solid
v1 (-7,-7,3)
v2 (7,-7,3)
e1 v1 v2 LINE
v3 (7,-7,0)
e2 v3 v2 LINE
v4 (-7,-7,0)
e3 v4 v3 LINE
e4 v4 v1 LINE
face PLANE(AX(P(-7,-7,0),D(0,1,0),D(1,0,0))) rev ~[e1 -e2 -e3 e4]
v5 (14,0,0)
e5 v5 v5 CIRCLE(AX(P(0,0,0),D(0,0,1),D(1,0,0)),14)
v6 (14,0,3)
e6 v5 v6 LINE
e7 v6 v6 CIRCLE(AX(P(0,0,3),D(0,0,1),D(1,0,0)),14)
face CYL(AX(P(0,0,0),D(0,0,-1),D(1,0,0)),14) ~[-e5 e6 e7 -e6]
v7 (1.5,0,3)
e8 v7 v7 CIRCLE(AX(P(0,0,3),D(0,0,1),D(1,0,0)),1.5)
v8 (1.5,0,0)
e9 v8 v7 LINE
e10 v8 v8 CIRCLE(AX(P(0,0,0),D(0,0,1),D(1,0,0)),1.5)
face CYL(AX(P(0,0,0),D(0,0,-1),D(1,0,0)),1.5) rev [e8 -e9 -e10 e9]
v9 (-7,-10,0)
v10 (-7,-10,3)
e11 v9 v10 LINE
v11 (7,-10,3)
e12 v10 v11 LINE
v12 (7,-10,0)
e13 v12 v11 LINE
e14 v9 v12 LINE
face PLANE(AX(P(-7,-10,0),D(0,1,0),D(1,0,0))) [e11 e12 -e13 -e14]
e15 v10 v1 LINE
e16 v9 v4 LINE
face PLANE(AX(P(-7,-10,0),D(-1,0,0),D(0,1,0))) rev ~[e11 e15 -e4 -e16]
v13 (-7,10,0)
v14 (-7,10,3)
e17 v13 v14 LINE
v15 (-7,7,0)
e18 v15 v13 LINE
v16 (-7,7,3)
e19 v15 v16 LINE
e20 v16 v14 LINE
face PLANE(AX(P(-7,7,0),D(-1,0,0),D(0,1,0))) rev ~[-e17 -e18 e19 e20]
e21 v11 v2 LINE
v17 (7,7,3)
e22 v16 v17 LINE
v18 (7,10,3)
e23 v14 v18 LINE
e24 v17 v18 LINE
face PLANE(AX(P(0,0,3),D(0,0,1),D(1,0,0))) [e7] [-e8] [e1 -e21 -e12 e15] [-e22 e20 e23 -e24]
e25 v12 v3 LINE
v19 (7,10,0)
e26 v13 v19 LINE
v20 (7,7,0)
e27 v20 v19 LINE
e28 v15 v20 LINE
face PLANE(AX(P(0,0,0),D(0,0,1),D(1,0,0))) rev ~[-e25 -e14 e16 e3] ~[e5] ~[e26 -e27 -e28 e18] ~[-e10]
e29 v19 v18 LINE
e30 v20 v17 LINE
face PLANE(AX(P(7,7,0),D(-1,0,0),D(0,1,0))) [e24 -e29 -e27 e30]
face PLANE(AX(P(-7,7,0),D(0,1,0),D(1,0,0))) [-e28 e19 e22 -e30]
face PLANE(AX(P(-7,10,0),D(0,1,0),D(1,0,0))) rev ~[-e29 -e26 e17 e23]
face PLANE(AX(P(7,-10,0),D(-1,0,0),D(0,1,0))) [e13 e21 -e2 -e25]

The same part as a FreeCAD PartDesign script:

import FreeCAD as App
import Part
import Sketcher

V = App.Vector
Q = App.Units.Quantity


def add_polygon(sketch, points):
    """Adds a closed chain of lines whose ends are joined by coincident constraints."""
    first, n = sketch.GeometryCount, len(points)
    for a, b in zip(points, points[1:] + points[:1]):
        sketch.addGeometry(Part.LineSegment(App.Vector(*a, 0), App.Vector(*b, 0)), False)
    for i in range(n):
        sketch.addConstraint(Sketcher.Constraint("Coincident", first + i, 2, first + (i + 1) % n, 1))

doc = App.newDocument("Part")
params = doc.addObject("Spreadsheet::Sheet", "Params")
for row, (alias, value) in enumerate([
    ("sketch1_diameter", "28 mm"),
    ("sketch1_diameter2", "3 mm"),
    ("sketch1_width", "14 mm"),
    ("sketch1_height", "3 mm"),
    ("pad1_length", "3 mm"),
], start=1):
    params.set(f"A{row}", alias)
    params.set(f"B{row}", "=" + value)
    params.setAlias(f"B{row}", alias)

body = doc.addObject("PartDesign::Body", "Body")

# Sketch on XY plane
sketch1 = body.newObject("Sketcher::SketchObject", "Sketch")
sketch1.AttachmentSupport = (doc.getObject("XY_Plane"), [""])
sketch1.MapMode = "FlatFace"
sketch1.addGeometry(Part.Circle(V(0, 0, 0), V(0, 0, 1), 14), False)  # 0
add_polygon(sketch1, [(7, -10), (-7, -10), (-7, -7), (7, -7)])  # lines 1-4
sketch1.addGeometry(Part.Circle(V(0, 0, 0), V(0, 0, 1), 1.5), False)  # 5
add_polygon(sketch1, [(7, 7), (-7, 7), (-7, 10), (7, 10)])  # lines 6-9
sketch1.addConstraint([
    Sketcher.Constraint("Horizontal", 1),
    Sketcher.Constraint("Vertical", 2),
    Sketcher.Constraint("Horizontal", 3),
    Sketcher.Constraint("Vertical", 4),
    Sketcher.Constraint("Horizontal", 6),
    Sketcher.Constraint("Vertical", 7),
    Sketcher.Constraint("Horizontal", 8),
    Sketcher.Constraint("Vertical", 9),
    Sketcher.Constraint("Coincident", 0, 3, -1, 1),
    Sketcher.Constraint("Coincident", 5, 3, -1, 1),
    Sketcher.Constraint("Symmetric", 3, 2, 6, 2, -1, 1),
    Sketcher.Constraint("Symmetric", 1, 2, 8, 2, -1, 1),
    Sketcher.Constraint("Vertical", 2, 2, 6, 2),
    Sketcher.Constraint("Diameter", 0, Q("28 mm")),
    Sketcher.Constraint("Diameter", 5, Q("3 mm")),
    Sketcher.Constraint("DistanceX", 1, 2, 1, 1, Q("14 mm")),
    Sketcher.Constraint("DistanceY", 2, 1, 2, 2, Q("3 mm")),
    Sketcher.Constraint("DistanceY", 1, 2, -1, 1, Q("10 mm")),
])
sketch1.setExpression("Constraints[21]", "Params.sketch1_diameter")
sketch1.setExpression("Constraints[22]", "Params.sketch1_diameter2")
sketch1.setExpression("Constraints[23]", "Params.sketch1_width")
sketch1.setExpression("Constraints[24]", "Params.sketch1_height")
pad1 = body.newObject("PartDesign::Pad", "Pad")
pad1.Profile = sketch1
pad1.setExpression("Length", "Params.pad1_length")

doc.recompute()
